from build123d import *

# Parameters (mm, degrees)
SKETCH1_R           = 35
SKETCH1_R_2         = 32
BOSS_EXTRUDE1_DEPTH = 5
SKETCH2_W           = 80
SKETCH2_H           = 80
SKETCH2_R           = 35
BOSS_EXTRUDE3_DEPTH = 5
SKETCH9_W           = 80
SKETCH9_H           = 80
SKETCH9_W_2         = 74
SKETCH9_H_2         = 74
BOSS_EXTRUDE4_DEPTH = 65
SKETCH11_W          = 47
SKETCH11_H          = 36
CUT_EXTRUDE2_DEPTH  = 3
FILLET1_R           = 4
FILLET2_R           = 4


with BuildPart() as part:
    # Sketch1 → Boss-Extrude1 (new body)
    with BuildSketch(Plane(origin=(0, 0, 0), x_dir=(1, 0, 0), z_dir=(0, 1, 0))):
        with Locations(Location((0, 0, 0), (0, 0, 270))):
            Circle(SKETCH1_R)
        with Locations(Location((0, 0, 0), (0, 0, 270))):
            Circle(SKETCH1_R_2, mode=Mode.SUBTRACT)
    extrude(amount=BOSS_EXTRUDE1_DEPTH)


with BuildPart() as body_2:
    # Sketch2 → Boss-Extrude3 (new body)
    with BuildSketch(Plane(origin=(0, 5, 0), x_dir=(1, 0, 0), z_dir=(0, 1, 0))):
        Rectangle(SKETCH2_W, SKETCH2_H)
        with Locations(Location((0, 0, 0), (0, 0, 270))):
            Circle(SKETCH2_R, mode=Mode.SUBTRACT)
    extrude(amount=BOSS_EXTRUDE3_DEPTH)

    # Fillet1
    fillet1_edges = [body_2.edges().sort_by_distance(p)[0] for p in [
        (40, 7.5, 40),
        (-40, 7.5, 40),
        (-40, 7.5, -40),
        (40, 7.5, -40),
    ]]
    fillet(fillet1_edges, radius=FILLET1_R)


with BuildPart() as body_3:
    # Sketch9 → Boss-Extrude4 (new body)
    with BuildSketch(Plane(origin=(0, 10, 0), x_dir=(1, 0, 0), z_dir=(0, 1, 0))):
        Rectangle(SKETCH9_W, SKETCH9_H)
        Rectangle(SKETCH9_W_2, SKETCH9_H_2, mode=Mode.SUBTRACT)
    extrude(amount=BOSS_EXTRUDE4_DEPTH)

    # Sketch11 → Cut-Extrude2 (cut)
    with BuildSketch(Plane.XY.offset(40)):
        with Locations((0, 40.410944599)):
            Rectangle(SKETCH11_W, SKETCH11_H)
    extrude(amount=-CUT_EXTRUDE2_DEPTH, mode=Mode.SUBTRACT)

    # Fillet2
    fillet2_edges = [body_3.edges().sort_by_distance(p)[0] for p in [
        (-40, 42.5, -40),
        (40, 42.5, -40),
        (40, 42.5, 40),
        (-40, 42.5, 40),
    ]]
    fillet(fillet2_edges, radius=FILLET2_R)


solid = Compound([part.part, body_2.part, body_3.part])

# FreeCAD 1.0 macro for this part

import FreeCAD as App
import Part
import Sketcher
Q = App.Units.Quantity


def edges_at(feature, points):
    """Names of the edges that pass closest to the given points."""
    edges = feature.Shape.Edges
    near = lambda p: min(range(len(edges)), key=lambda i: edges[i].distToShape(Part.Vertex(*p))[0])
    return sorted({f"Edge{near(p) + 1}" for p in points})


def add_polygon(sketch, points):
    """Adds a closed chain of lines whose ends are joined by coincident constraints."""
    first, n = sketch.GeometryCount, len(points)
    for a, b in zip(points, points[1:] + points[:1]):
        sketch.addGeometry(Part.LineSegment(App.Vector(*a, 0), App.Vector(*b, 0)), False)
    for i in range(n):
        sketch.addConstraint(Sketcher.Constraint("Coincident", first + i, 2, first + (i + 1) % n, 1))

doc = App.newDocument("Part")
body = doc.addObject("PartDesign::Body", "Body")

# Sketch on XZ plane
sketch1 = body.newObject("Sketcher::SketchObject", "Sketch")
sketch1.AttachmentSupport = (doc.getObject("XZ_Plane"), [""])
sketch1.MapMode = "FlatFace"
sketch1.addGeometry([
    Part.Circle(App.Vector(0, 0, 0), App.Vector(0, 0, 1), 35),
    Part.Circle(App.Vector(0, 0, 0), App.Vector(0, 0, 1), 32),
], False)
sketch1.addConstraint([
    Sketcher.Constraint("Coincident", 0, 3, -1, 1),
    Sketcher.Constraint("Coincident", 1, 3, -1, 1),
    Sketcher.Constraint("Diameter", 0, Q("70 mm")),
    Sketcher.Constraint("Diameter", 1, Q("64 mm")),
])
pad1 = body.newObject("PartDesign::Pad", "Pad")
pad1.Profile = sketch1
pad1.Length = 5
pad1.Reversed = True
body2 = doc.addObject("PartDesign::Body", "Body001")

# Sketch on XZ plane
sketch2 = body2.newObject("Sketcher::SketchObject", "Sketch001")
sketch2.AttachmentSupport = (doc.getObject("XZ_Plane001"), [""])
sketch2.MapMode = "FlatFace"
sketch2.AttachmentOffset = App.Placement(App.Vector(0, 0, -5), App.Rotation())
add_polygon(sketch2, [(-40, -40), (-40, 40), (40, 40), (40, -40)])  # lines 0-3
sketch2.addGeometry(Part.Circle(App.Vector(0, 0, 0), App.Vector(0, 0, 1), 35), False)  # 4
sketch2.addConstraint([
    Sketcher.Constraint("Vertical", 0),
    Sketcher.Constraint("Horizontal", 1),
    Sketcher.Constraint("Vertical", 2),
    Sketcher.Constraint("Horizontal", 3),
    Sketcher.Constraint("Coincident", 4, 3, -1, 1),
    Sketcher.Constraint("Symmetric", 0, 2, 2, 2, -1, 1),
    Sketcher.Constraint("Equal", 3, 0),
    Sketcher.Constraint("Diameter", 4, Q("70 mm")),
    Sketcher.Constraint("DistanceX", 1, 1, 1, 2, Q("80 mm")),
])
pad2 = body2.newObject("PartDesign::Pad", "Pad001")
pad2.Profile = sketch2
pad2.Length = 5
pad2.Reversed = True
doc.recompute()

fillet = body2.newObject("PartDesign::Fillet", "Fillet")
fillet.Base = (pad2, edges_at(pad2, [
    (40, 7.5, 40),
    (-40, 7.5, 40),
    (-40, 7.5, -40),
    (40, 7.5, -40),
]))
fillet.Radius = 4
body3 = doc.addObject("PartDesign::Body", "Body002")

# Sketch on XZ plane
sketch3 = body3.newObject("Sketcher::SketchObject", "Sketch002")
sketch3.AttachmentSupport = (doc.getObject("XZ_Plane002"), [""])
sketch3.MapMode = "FlatFace"
sketch3.AttachmentOffset = App.Placement(App.Vector(0, 0, -10), App.Rotation())
add_polygon(sketch3, [(-40, -40), (-40, 40), (40, 40), (40, -40)])  # lines 0-3
add_polygon(sketch3, [(37, 37), (-37, 37), (-37, -37), (37, -37)])  # lines 4-7
sketch3.addConstraint([
    Sketcher.Constraint("Vertical", 0),
    Sketcher.Constraint("Horizontal", 1),
    Sketcher.Constraint("Vertical", 2),
    Sketcher.Constraint("Horizontal", 3),
    Sketcher.Constraint("Horizontal", 4),
    Sketcher.Constraint("Vertical", 5),
    Sketcher.Constraint("Horizontal", 6),
    Sketcher.Constraint("Vertical", 7),
    Sketcher.Constraint("Symmetric", 0, 2, 2, 2, -1, 1),
    Sketcher.Constraint("Symmetric", 4, 2, 6, 2, -1, 1),
    Sketcher.Constraint("Equal", 3, 0),
    Sketcher.Constraint("Equal", 6, 5),
    Sketcher.Constraint("DistanceX", 1, 1, 1, 2, Q("80 mm")),
    Sketcher.Constraint("DistanceX", 4, 2, 4, 1, Q("74 mm")),
])
pad3 = body3.newObject("PartDesign::Pad", "Pad002")
pad3.Profile = sketch3
pad3.Length = 65
pad3.Reversed = True

# Sketch on XY plane
sketch4 = body3.newObject("Sketcher::SketchObject", "Sketch003")
sketch4.AttachmentSupport = (doc.getObject("XY_Plane002"), [""])
sketch4.MapMode = "FlatFace"
sketch4.AttachmentOffset = App.Placement(App.Vector(0, 0, 40), App.Rotation())
add_polygon(sketch4, [(-24, 58), (-24, 22), (24, 22), (24, 58)])  # lines 0-3
sketch4.addConstraint([
    Sketcher.Constraint("Vertical", 0),
    Sketcher.Constraint("Horizontal", 1),
    Sketcher.Constraint("Vertical", 2),
    Sketcher.Constraint("Horizontal", 3),
    Sketcher.Constraint("DistanceX", 1, 1, 1, 2, Q("47 mm")),
    Sketcher.Constraint("DistanceY", 0, 2, 0, 1, Q("36 mm")),
    Sketcher.Constraint("DistanceX", 0, 2, -1, 1, Q("23.5 mm")),
    Sketcher.Constraint("DistanceY", -1, 1, 0, 2, Q("22.410945 mm")),
])
pocket1 = body3.newObject("PartDesign::Pocket", "Pocket")
pocket1.Profile = sketch4
pocket1.Length = 3
doc.recompute()

fillet2 = body3.newObject("PartDesign::Fillet", "Fillet001")
fillet2.Base = (pocket1, edges_at(pocket1, [
    (-40, 42.5, -40),
    (40, 42.5, -40),
    (40, 42.5, 40),
    (-40, 42.5, 40),
]))
fillet2.Radius = 4

doc.recompute()
